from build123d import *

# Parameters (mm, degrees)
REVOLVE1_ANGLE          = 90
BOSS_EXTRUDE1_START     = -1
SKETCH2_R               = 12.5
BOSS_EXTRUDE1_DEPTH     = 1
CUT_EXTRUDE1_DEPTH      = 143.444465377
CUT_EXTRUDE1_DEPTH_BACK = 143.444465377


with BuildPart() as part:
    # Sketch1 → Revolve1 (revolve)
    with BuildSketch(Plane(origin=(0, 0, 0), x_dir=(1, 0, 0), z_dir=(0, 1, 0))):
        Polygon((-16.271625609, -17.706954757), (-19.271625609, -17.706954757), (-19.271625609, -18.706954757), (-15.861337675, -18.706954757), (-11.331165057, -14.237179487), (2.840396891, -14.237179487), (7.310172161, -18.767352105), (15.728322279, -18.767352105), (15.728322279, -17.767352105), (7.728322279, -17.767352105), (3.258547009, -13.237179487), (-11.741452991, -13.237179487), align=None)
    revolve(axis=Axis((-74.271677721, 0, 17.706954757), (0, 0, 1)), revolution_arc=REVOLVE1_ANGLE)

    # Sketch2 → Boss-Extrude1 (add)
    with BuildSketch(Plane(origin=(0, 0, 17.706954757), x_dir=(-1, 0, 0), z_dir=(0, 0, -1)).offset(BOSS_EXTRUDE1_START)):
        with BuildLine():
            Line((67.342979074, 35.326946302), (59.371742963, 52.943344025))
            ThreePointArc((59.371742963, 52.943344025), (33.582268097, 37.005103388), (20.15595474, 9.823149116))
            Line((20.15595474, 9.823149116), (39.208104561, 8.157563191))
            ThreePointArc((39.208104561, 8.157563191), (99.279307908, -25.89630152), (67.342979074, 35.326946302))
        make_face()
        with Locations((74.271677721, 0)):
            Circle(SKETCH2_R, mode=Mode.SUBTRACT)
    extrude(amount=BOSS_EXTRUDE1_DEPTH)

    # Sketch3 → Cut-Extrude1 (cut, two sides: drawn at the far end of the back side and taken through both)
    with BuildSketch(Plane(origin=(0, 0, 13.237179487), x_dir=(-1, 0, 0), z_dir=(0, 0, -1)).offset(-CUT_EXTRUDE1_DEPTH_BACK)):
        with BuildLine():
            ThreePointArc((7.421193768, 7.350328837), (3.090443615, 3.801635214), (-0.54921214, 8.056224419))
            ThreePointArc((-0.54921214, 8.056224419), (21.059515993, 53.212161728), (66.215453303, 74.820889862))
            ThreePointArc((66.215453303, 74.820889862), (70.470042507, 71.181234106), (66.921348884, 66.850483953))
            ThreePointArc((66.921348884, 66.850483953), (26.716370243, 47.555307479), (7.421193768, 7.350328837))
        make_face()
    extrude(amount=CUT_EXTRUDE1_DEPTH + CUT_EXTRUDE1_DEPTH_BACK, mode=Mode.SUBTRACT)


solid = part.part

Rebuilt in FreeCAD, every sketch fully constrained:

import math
import FreeCAD as App
import Part
import Sketcher
from FreeCAD import Vector
Q = App.Units.Quantity

doc = App.newDocument("Part")
params = doc.addObject("Spreadsheet::Sheet", "Params")
for row, (alias, value) in enumerate([
    ("sketch1_width", "3 mm"),
    ("sketch1_width2", "8 mm"),
    ("sketch1_width3", "15 mm"),
    ("sketch1_height", "1 mm"),
    ("revolution_angle", "90 deg"),
    ("sketch2_diameter", "25 mm"),
    ("sketch2_radius", "36 mm"),
    ("pad1_length", "1 mm"),
], start=1):
    params.set(f"A{row}", alias)
    params.set(f"B{row}", "=" + value)
    params.setAlias(f"B{row}", alias)

body = doc.addObject("PartDesign::Body", "Body")

sketch1 = doc.addObject("Sketcher::SketchObject", "Sketch")
body.addObject(sketch1)
sketch1.AttachmentSupport = (doc.XZ_Plane, [""])
sketch1.MapMode = "FlatFace"
sketch1.addGeometry([
    Part.LineSegment(Vector(-16.271626, 17.706955, 0), Vector(-19.271626, 17.706955, 0)),
    Part.LineSegment(Vector(-19.271626, 17.706955, 0), Vector(-19.271626, 18.706955, 0)),
    Part.LineSegment(Vector(-19.271626, 18.706955, 0), Vector(-15.861338, 18.706955, 0)),
    Part.LineSegment(Vector(-15.861338, 18.706955, 0), Vector(-11.331165, 14.237179, 0)),
    Part.LineSegment(Vector(-11.331165, 14.237179, 0), Vector(2.840397, 14.237179, 0)),
    Part.LineSegment(Vector(2.840397, 14.237179, 0), Vector(7.310172, 18.767352, 0)),
    Part.LineSegment(Vector(7.310172, 18.767352, 0), Vector(15.728322, 18.767352, 0)),
    Part.LineSegment(Vector(15.728322, 18.767352, 0), Vector(15.728322, 17.767352, 0)),
    Part.LineSegment(Vector(15.728322, 17.767352, 0), Vector(7.728322, 17.767352, 0)),
    Part.LineSegment(Vector(7.728322, 17.767352, 0), Vector(3.258547, 13.237179, 0)),
    Part.LineSegment(Vector(3.258547, 13.237179, 0), Vector(-11.741453, 13.237179, 0)),
    Part.LineSegment(Vector(-11.741453, 13.237179, 0), Vector(-16.271626, 17.706955, 0)),
], False)
sketch1.addGeometry(Part.LineSegment(Vector(-74.271678, 13.237179, 0), Vector(-74.271678, 18.767352, 0)), True)
sketch1.addConstraint([
    Sketcher.Constraint("Coincident", 0, 2, 1, 1),
    Sketcher.Constraint("Coincident", 1, 2, 2, 1),
    Sketcher.Constraint("Coincident", 2, 2, 3, 1),
    Sketcher.Constraint("Coincident", 3, 2, 4, 1),
    Sketcher.Constraint("Coincident", 4, 2, 5, 1),
    Sketcher.Constraint("Coincident", 5, 2, 6, 1),
    Sketcher.Constraint("Coincident", 6, 2, 7, 1),
    Sketcher.Constraint("Coincident", 7, 2, 8, 1),
    Sketcher.Constraint("Coincident", 8, 2, 9, 1),
    Sketcher.Constraint("Coincident", 9, 2, 10, 1),
    Sketcher.Constraint("Coincident", 10, 2, 11, 1),
    Sketcher.Constraint("Coincident", 11, 2, 0, 1),
    Sketcher.Constraint("Horizontal", 0),
    Sketcher.Constraint("Vertical", 1),
    Sketcher.Constraint("Horizontal", 2),
    Sketcher.Constraint("Horizontal", 4),
    Sketcher.Constraint("Horizontal", 6),
    Sketcher.Constraint("Vertical", 7),
    Sketcher.Constraint("Horizontal", 8),
    Sketcher.Constraint("Horizontal", 10),
    Sketcher.Constraint("Vertical", 12),
    Sketcher.Constraint("Perpendicular", 3, 5),
    Sketcher.Constraint("Parallel", 5, 9),
    Sketcher.Constraint("Perpendicular", 9, 11),
    Sketcher.Constraint("Horizontal", 10, 2, 12, 1),
    Sketcher.Constraint("Horizontal", 6, 2, 12, 2),
    Sketcher.Constraint("Equal", 1, 7),
    Sketcher.Constraint("Equal", 3, 5),
    Sketcher.Constraint("Equal", 5, 9),
    Sketcher.Constraint("DistanceX", 0, 2, 0, 1, Q("3 mm")),
    Sketcher.Constraint("DistanceX", 8, 2, 8, 1, Q("8 mm")),
    Sketcher.Constraint("DistanceX", 10, 2, 10, 1, Q("15 mm")),
    Sketcher.Constraint("DistanceY", 1, 1, 1, 2, Q("1 mm")),
    Sketcher.Constraint("DistanceX", 4, 1, 4, 2, Q("14.171562 mm")),
    Sketcher.Constraint("DistanceX", 6, 1, 6, 2, Q("8.41815 mm")),
    Sketcher.Constraint("DistanceY", 12, 1, 12, 2, Q("5.530173 mm")),
    Sketcher.Constraint("DistanceY", -1, 1, 3, 2, Q("14.237179 mm")),
    Sketcher.Constraint("DistanceX", 2, 2, 5, 2, Q("23.17151 mm")),
    Sketcher.Constraint("DistanceX", 12, 1, 2, 2, Q("58.41034 mm")),
    Sketcher.Constraint("DistanceX", 0, 2, -1, 1, Q("19.271626 mm")),
])
sketch1.setExpression("Constraints[29]", "Params.sketch1_width")
sketch1.setExpression("Constraints[30]", "Params.sketch1_width2")
sketch1.setExpression("Constraints[31]", "Params.sketch1_width3")
sketch1.setExpression("Constraints[32]", "Params.sketch1_height")
revolution = doc.addObject("PartDesign::Revolution", "Revolution")
body.addObject(revolution)
revolution.Profile = sketch1
revolution.ReferenceAxis = (sketch1, ["Axis0"])
revolution.setExpression("Angle", "Params.revolution_angle")

sketch2 = doc.addObject("Sketcher::SketchObject", "Sketch001")
body.addObject(sketch2)
sketch2.AttachmentSupport = (doc.XY_Plane, [""])
sketch2.MapMode = "FlatFace"
sketch2.AttachmentOffset = App.Placement(Vector(0, 0, 18.706955), App.Rotation())
sketch2.addGeometry([
    Part.LineSegment(Vector(-67.342979, 35.326946, 0), Vector(-59.371743, 52.943344, 0)),
    Part.ArcOfCircle(Part.Circle(Vector(-74.271678, 0, 0), Vector(0, 0, 1), 55.000052), math.radians(10.288372), math.radians(74.281716)),
    Part.LineSegment(Vector(-20.155955, 9.823149, 0), Vector(-39.208105, 8.157563, 0)),
    Part.ArcOfCircle(Part.Circle(Vector(-74.271678, 0, 0), Vector(0, 0, 1), 36), math.radians(78.903393), math.radians(373.096922)),
    Part.Circle(Vector(-74.271678, 0, 0), Vector(0, 0, 1), 12.5),
], False)
sketch2.addConstraint([
    Sketcher.Constraint("Coincident", 0, 2, 1, 2),
    Sketcher.Constraint("Coincident", 1, 1, 2, 1),
    Sketcher.Constraint("Coincident", 2, 2, 3, 2),
    Sketcher.Constraint("Coincident", 3, 1, 0, 1),
    Sketcher.Constraint("Coincident", 3, 3, 1, 3),
    Sketcher.Constraint("Coincident", 4, 3, 1, 3),
    Sketcher.Constraint("PointOnObject", 1, 3, -1),
    Sketcher.Constraint("Diameter", 4, Q("25 mm")),
    Sketcher.Constraint("Radius", 3, Q("36 mm")),
    Sketcher.Constraint("Radius", 1, Q("55.000052 mm")),
    Sketcher.Constraint("DistanceX", 3, 3, 3, 1, Q("6.928699 mm")),
    Sketcher.Constraint("DistanceY", -1, 1, 1, 1, Q("9.823149 mm")),
    Sketcher.Constraint("DistanceX", 3, 1, -1, 1, Q("67.342979 mm")),
    Sketcher.Constraint("DistanceX", 0, 2, 1, 1, Q("39.215788 mm")),
    Sketcher.Constraint("DistanceX", 2, 2, 1, 1, Q("19.05215 mm")),
])
sketch2.setExpression("Constraints[7]", "Params.sketch2_diameter")
sketch2.setExpression("Constraints[8]", "Params.sketch2_radius")
pad1 = doc.addObject("PartDesign::Pad", "Pad")
body.addObject(pad1)
pad1.Profile = sketch2
pad1.setExpression("Length", "Params.pad1_length")
pad1.Reversed = True

sketch3 = doc.addObject("Sketcher::SketchObject", "Sketch002")
body.addObject(sketch3)
sketch3.AttachmentSupport = (doc.XY_Plane, [""])
sketch3.MapMode = "FlatFace"
sketch3.AttachmentOffset = App.Placement(Vector(0, 0, 13.237179), App.Rotation())
sketch3.addGeometry([
    Part.ArcOfCircle(Part.Circle(Vector(-3.443471, 7.787733, 0), Vector(0, 0, 1), 4.0017), math.radians(-173.724771), math.radians(3.847113)),
    Part.ArcOfCircle(Part.Circle(Vector(-74.271678, 0, 0), Vector(0, 0, 1), 67.253361), math.radians(6.274568), math.radians(83.725432)),
    Part.ArcOfCircle(Part.Circle(Vector(-66.483945, 70.828207, 0), Vector(0, 0, 1), 4.0017), math.radians(86.152887), math.radians(263.724771)),
    Part.ArcOfCircle(Part.Circle(Vector(-74.271678, 0, 0), Vector(0, 0, 1), 75.253361), math.radians(6.145558), math.radians(83.854442)),
], False)
sketch3.addConstraint([
    Sketcher.Constraint("Coincident", 0, 1, 1, 1),
    Sketcher.Constraint("Coincident", 1, 2, 2, 2),
    Sketcher.Constraint("Coincident", 2, 1, 3, 2),
    Sketcher.Constraint("Coincident", 3, 1, 0, 2),
    Sketcher.Constraint("Coincident", 3, 3, 1, 3),
    Sketcher.Constraint("Equal", 0, 2),
    Sketcher.Constraint("PointOnObject", 1, 3, -1),
    Sketcher.Constraint("Radius", 0, Q("4.0017 mm")),
    Sketcher.Constraint("Radius", 1, Q("67.253361 mm")),
    Sketcher.Constraint("Radius", 3, Q("75.253361 mm")),
    Sketcher.Constraint("DistanceX", 0, 3, -1, 1, Q("3.443471 mm")),
    Sketcher.Constraint("DistanceY", -1, 1, 0, 1, Q("7.350329 mm")),
    Sketcher.Constraint("DistanceX", 1, 2, -1, 1, Q("66.921349 mm")),
    Sketcher.Constraint("DistanceY", -1, 1, 2, 1, Q("74.82089 mm")),
    Sketcher.Constraint("DistanceY", 0, 3, 1, 2, Q("59.062751 mm")),
])
pocket1 = doc.addObject("PartDesign::Pocket", "Pocket")
body.addObject(pocket1)
pocket1.Profile = sketch3
pocket1.Type = "ThroughAll"
pocket1.Midplane = True

doc.recompute()
